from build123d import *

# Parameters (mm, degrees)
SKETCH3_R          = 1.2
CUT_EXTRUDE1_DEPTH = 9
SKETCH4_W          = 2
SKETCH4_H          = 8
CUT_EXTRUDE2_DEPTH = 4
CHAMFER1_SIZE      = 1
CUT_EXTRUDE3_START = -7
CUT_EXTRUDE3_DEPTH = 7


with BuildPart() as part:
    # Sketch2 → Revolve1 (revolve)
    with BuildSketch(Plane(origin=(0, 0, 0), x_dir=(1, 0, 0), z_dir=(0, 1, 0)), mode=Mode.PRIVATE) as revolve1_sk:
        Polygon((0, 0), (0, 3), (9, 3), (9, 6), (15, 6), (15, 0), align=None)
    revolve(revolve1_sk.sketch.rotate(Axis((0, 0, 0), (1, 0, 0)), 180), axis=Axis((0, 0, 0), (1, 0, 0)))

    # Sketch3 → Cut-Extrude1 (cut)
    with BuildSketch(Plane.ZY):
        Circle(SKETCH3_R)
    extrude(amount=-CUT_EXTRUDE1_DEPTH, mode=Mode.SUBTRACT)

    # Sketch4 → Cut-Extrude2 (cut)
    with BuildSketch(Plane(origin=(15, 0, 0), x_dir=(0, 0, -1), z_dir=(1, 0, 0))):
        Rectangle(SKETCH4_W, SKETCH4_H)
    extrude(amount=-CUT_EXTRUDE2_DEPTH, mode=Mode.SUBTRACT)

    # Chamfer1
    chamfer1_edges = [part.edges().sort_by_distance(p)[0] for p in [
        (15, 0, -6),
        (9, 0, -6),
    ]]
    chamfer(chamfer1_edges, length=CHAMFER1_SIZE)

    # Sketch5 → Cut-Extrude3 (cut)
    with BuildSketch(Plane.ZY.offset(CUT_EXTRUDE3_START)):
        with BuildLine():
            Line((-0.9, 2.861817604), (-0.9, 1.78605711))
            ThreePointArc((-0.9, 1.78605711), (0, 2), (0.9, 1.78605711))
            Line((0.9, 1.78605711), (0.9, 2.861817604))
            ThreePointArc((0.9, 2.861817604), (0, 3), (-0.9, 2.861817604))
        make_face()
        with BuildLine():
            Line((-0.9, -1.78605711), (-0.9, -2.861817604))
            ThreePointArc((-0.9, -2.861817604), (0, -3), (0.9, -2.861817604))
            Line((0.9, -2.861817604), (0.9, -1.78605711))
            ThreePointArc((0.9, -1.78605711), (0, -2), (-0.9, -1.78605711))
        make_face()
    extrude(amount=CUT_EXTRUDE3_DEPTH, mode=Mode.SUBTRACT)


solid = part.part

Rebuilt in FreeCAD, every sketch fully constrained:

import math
import FreeCAD as App
import Part
import Sketcher

V = App.Vector


def edges_at(feature, points):
    """Names of the edges that pass closest to the given points."""
    edges = feature.Shape.Edges
    near = lambda p: min(range(len(edges)), key=lambda i: edges[i].distToShape(Part.Vertex(*p))[0])
    return sorted({f"Edge{near(p) + 1}" for p in points})

doc = App.newDocument("Part")
params = doc.addObject("Spreadsheet::Sheet", "Params")
for row, (alias, value) in enumerate([
    ("sketch1_width", "15 mm"),
    ("sketch1_width2", "6 mm"),
    ("revolution_angle", "360 deg"),
    ("sketch2_diameter", "2.4 mm"),
    ("pocket1_length", "9 mm"),
    ("sketch3_width", "8 mm"),
    ("sketch3_height", "2 mm"),
    ("pocket2_length", "4 mm"),
    ("chamfer_size", "1 mm"),
    ("sketch4_radius", "2 mm"),
    ("sketch4_radius2", "3 mm"),
    ("pocket3_length", "7 mm"),
], start=1):
    params.set(f"A{row}", alias)
    params.set(f"B{row}", "=" + value)
    params.setAlias(f"B{row}", alias)

body = doc.addObject("PartDesign::Body", "Body")

# Sketch on XZ plane
sketch1 = doc.addObject("Sketcher::SketchObject", "Sketch")
body.addObject(sketch1)
sketch1.AttachmentSupport = (doc.XZ_Plane, [""])
sketch1.MapMode = "FlatFace"
sketch1.addGeometry(Part.LineSegment(V(0, -3, 0), V(0, 0, 0)), False)
sketch1.addGeometry(Part.LineSegment(V(0, 0, 0), V(15, 0, 0)), False)
sketch1.addGeometry(Part.LineSegment(V(15, 0, 0), V(15, -6, 0)), False)
sketch1.addGeometry(Part.LineSegment(V(15, -6, 0), V(9, -6, 0)), False)
sketch1.addGeometry(Part.LineSegment(V(9, -6, 0), V(9, -3, 0)), False)
sketch1.addGeometry(Part.LineSegment(V(9, -3, 0), V(0, -3, 0)), False)
sketch1.addConstraint(Sketcher.Constraint("Coincident", 0, 2, 1, 1))
sketch1.addConstraint(Sketcher.Constraint("Coincident", 1, 2, 2, 1))
sketch1.addConstraint(Sketcher.Constraint("Coincident", 2, 2, 3, 1))
sketch1.addConstraint(Sketcher.Constraint("Coincident", 3, 2, 4, 1))
sketch1.addConstraint(Sketcher.Constraint("Coincident", 4, 2, 5, 1))
sketch1.addConstraint(Sketcher.Constraint("Coincident", 5, 2, 0, 1))
sketch1.addConstraint(Sketcher.Constraint("Vertical", 0))
sketch1.addConstraint(Sketcher.Constraint("Horizontal", 1))
sketch1.addConstraint(Sketcher.Constraint("Vertical", 2))
sketch1.addConstraint(Sketcher.Constraint("Horizontal", 3))
sketch1.addConstraint(Sketcher.Constraint("Vertical", 4))
sketch1.addConstraint(Sketcher.Constraint("Horizontal", 5))
sketch1.addConstraint(Sketcher.Constraint("Coincident", 0, 2, -1, 1))
sketch1.addConstraint(Sketcher.Constraint("Equal", 3, 2))
sketch1.addConstraint(Sketcher.Constraint("Equal", 0, 4))
sketch1.addConstraint(Sketcher.Constraint("DistanceX", 1, 1, 1, 2, 15.0))
sketch1.addConstraint(Sketcher.Constraint("DistanceX", 3, 2, 3, 1, 6.0))
sketch1.setExpression("Constraints[15]", "Params.sketch1_width")
sketch1.setExpression("Constraints[16]", "Params.sketch1_width2")
revolution = doc.addObject("PartDesign::Revolution", "Revolution")
body.addObject(revolution)
revolution.Profile = sketch1
revolution.ReferenceAxis = (sketch1, ["H_Axis"])
revolution.setExpression("Angle", "Params.revolution_angle")

# Sketch on YZ plane
sketch2 = doc.addObject("Sketcher::SketchObject", "Sketch001")
body.addObject(sketch2)
sketch2.AttachmentSupport = (doc.YZ_Plane, [""])
sketch2.MapMode = "FlatFace"
sketch2.addGeometry(Part.Circle(V(0, 0, 0), V(0, 0, 1), 1.2), False)
sketch2.addConstraint(Sketcher.Constraint("Coincident", 0, 3, -1, 1))
sketch2.addConstraint(Sketcher.Constraint("Diameter", 0, 2.4))
sketch2.setExpression("Constraints[1]", "Params.sketch2_diameter")
pocket1 = doc.addObject("PartDesign::Pocket", "Pocket")
body.addObject(pocket1)
pocket1.Profile = sketch2
pocket1.setExpression("Length", "Params.pocket1_length")
pocket1.Reversed = True

# Sketch on YZ plane
sketch3 = doc.addObject("Sketcher::SketchObject", "Sketch002")
body.addObject(sketch3)
sketch3.AttachmentSupport = (doc.YZ_Plane, [""])
sketch3.MapMode = "FlatFace"
sketch3.AttachmentOffset = App.Placement(V(0, 0, 15), App.Rotation())
sketch3.addGeometry(Part.LineSegment(V(4, 1, 0), V(-4, 1, 0)), False)
sketch3.addGeometry(Part.LineSegment(V(-4, 1, 0), V(-4, -1, 0)), False)
sketch3.addGeometry(Part.LineSegment(V(-4, -1, 0), V(4, -1, 0)), False)
sketch3.addGeometry(Part.LineSegment(V(4, -1, 0), V(4, 1, 0)), False)
sketch3.addConstraint(Sketcher.Constraint("Coincident", 0, 2, 1, 1))
sketch3.addConstraint(Sketcher.Constraint("Coincident", 1, 2, 2, 1))
sketch3.addConstraint(Sketcher.Constraint("Coincident", 2, 2, 3, 1))
sketch3.addConstraint(Sketcher.Constraint("Coincident", 3, 2, 0, 1))
sketch3.addConstraint(Sketcher.Constraint("Horizontal", 0))
sketch3.addConstraint(Sketcher.Constraint("Vertical", 1))
sketch3.addConstraint(Sketcher.Constraint("Horizontal", 2))
sketch3.addConstraint(Sketcher.Constraint("Vertical", 3))
sketch3.addConstraint(Sketcher.Constraint("Symmetric", 0, 2, 2, 2, -1, 1))
sketch3.addConstraint(Sketcher.Constraint("DistanceX", 0, 2, 0, 1, 8.0))
sketch3.addConstraint(Sketcher.Constraint("DistanceY", 1, 2, 1, 1, 2.0))
sketch3.setExpression("Constraints[9]", "Params.sketch3_width")
sketch3.setExpression("Constraints[10]", "Params.sketch3_height")
pocket2 = doc.addObject("PartDesign::Pocket", "Pocket001")
body.addObject(pocket2)
pocket2.Profile = sketch3
pocket2.setExpression("Length", "Params.pocket2_length")
doc.recompute()

chamfer = doc.addObject("PartDesign::Chamfer", "Chamfer")
body.addObject(chamfer)
chamfer.Base = (pocket2, edges_at(pocket2, [(15, 0, -6), (9, 0, -6)]))
chamfer.setExpression("Size", "Params.chamfer_size")

# Sketch on YZ plane
sketch4 = doc.addObject("Sketcher::SketchObject", "Sketch003")
body.addObject(sketch4)
sketch4.AttachmentSupport = (doc.YZ_Plane, [""])
sketch4.MapMode = "FlatFace"
sketch4.AttachmentOffset = App.Placement(V(0, 0, 7), App.Rotation())
sketch4.addGeometry(Part.LineSegment(V(2.9, -0.9, 0), V(1.8, -0.9, 0)), False)
sketch4.addGeometry(Part.ArcOfCircle(Part.Circle(V(0, 0, 0), V(0, 0, 1), 2), math.radians(-27), math.radians(27)), False)
sketch4.addGeometry(Part.LineSegment(V(1.8, 0.9, 0), V(2.9, 0.9, 0)), False)
sketch4.addGeometry(Part.ArcOfCircle(Part.Circle(V(0, 0, 0), V(0, 0, 1), 3), math.radians(-17), math.radians(17)), False)
sketch4.addGeometry(Part.LineSegment(V(-1.8, -0.9, 0), V(-2.9, -0.9, 0)), False)
sketch4.addGeometry(Part.ArcOfCircle(Part.Circle(V(0, 0, 0), V(0, 0, 1), 3), math.radians(163), math.radians(197)), False)
sketch4.addGeometry(Part.LineSegment(V(-2.9, 0.9, 0), V(-1.8, 0.9, 0)), False)
sketch4.addGeometry(Part.ArcOfCircle(Part.Circle(V(0, 0, 0), V(0, 0, 1), 2), math.radians(153), math.radians(207)), False)
sketch4.addConstraint(Sketcher.Constraint("Coincident", 0, 2, 1, 1))
sketch4.addConstraint(Sketcher.Constraint("Coincident", 1, 2, 2, 1))
sketch4.addConstraint(Sketcher.Constraint("Coincident", 2, 2, 3, 2))
sketch4.addConstraint(Sketcher.Constraint("Coincident", 3, 1, 0, 1))
sketch4.addConstraint(Sketcher.Constraint("Coincident", 4, 2, 5, 2))
sketch4.addConstraint(Sketcher.Constraint("Coincident", 5, 1, 6, 1))
sketch4.addConstraint(Sketcher.Constraint("Coincident", 6, 2, 7, 1))
sketch4.addConstraint(Sketcher.Constraint("Coincident", 7, 2, 4, 1))
sketch4.addConstraint(Sketcher.Constraint("Horizontal", 0))
sketch4.addConstraint(Sketcher.Constraint("Horizontal", 2))
sketch4.addConstraint(Sketcher.Constraint("Horizontal", 4))
sketch4.addConstraint(Sketcher.Constraint("Horizontal", 6))
sketch4.addConstraint(Sketcher.Constraint("Coincident", 1, 3, -1, 1))
sketch4.addConstraint(Sketcher.Constraint("Coincident", 3, 3, -1, 1))
sketch4.addConstraint(Sketcher.Constraint("Coincident", 5, 3, -1, 1))
sketch4.addConstraint(Sketcher.Constraint("Coincident", 7, 3, -1, 1))
sketch4.addConstraint(Sketcher.Constraint("Equal", 3, 5))
sketch4.addConstraint(Sketcher.Constraint("Equal", 1, 7))
sketch4.addConstraint(Sketcher.Constraint("Horizontal", 3, 1, 4, 2))
sketch4.addConstraint(Sketcher.Constraint("Horizontal", 2, 2, 5, 1))
sketch4.addConstraint(Sketcher.Constraint("Vertical", 0, 2, 1, 2))
sketch4.addConstraint(Sketcher.Constraint("Radius", 1, 2.0))
sketch4.addConstraint(Sketcher.Constraint("Radius", 3, 3.0))
sketch4.addConstraint(Sketcher.Constraint("DistanceY", 0, 2, -1, 1, 0.9))
sketch4.setExpression("Constraints[21]", "Params.sketch4_radius")
sketch4.setExpression("Constraints[22]", "Params.sketch4_radius2")
pocket3 = doc.addObject("PartDesign::Pocket", "Pocket002")
body.addObject(pocket3)
pocket3.Profile = sketch4
pocket3.setExpression("Length", "Params.pocket3_length")

doc.recompute()
